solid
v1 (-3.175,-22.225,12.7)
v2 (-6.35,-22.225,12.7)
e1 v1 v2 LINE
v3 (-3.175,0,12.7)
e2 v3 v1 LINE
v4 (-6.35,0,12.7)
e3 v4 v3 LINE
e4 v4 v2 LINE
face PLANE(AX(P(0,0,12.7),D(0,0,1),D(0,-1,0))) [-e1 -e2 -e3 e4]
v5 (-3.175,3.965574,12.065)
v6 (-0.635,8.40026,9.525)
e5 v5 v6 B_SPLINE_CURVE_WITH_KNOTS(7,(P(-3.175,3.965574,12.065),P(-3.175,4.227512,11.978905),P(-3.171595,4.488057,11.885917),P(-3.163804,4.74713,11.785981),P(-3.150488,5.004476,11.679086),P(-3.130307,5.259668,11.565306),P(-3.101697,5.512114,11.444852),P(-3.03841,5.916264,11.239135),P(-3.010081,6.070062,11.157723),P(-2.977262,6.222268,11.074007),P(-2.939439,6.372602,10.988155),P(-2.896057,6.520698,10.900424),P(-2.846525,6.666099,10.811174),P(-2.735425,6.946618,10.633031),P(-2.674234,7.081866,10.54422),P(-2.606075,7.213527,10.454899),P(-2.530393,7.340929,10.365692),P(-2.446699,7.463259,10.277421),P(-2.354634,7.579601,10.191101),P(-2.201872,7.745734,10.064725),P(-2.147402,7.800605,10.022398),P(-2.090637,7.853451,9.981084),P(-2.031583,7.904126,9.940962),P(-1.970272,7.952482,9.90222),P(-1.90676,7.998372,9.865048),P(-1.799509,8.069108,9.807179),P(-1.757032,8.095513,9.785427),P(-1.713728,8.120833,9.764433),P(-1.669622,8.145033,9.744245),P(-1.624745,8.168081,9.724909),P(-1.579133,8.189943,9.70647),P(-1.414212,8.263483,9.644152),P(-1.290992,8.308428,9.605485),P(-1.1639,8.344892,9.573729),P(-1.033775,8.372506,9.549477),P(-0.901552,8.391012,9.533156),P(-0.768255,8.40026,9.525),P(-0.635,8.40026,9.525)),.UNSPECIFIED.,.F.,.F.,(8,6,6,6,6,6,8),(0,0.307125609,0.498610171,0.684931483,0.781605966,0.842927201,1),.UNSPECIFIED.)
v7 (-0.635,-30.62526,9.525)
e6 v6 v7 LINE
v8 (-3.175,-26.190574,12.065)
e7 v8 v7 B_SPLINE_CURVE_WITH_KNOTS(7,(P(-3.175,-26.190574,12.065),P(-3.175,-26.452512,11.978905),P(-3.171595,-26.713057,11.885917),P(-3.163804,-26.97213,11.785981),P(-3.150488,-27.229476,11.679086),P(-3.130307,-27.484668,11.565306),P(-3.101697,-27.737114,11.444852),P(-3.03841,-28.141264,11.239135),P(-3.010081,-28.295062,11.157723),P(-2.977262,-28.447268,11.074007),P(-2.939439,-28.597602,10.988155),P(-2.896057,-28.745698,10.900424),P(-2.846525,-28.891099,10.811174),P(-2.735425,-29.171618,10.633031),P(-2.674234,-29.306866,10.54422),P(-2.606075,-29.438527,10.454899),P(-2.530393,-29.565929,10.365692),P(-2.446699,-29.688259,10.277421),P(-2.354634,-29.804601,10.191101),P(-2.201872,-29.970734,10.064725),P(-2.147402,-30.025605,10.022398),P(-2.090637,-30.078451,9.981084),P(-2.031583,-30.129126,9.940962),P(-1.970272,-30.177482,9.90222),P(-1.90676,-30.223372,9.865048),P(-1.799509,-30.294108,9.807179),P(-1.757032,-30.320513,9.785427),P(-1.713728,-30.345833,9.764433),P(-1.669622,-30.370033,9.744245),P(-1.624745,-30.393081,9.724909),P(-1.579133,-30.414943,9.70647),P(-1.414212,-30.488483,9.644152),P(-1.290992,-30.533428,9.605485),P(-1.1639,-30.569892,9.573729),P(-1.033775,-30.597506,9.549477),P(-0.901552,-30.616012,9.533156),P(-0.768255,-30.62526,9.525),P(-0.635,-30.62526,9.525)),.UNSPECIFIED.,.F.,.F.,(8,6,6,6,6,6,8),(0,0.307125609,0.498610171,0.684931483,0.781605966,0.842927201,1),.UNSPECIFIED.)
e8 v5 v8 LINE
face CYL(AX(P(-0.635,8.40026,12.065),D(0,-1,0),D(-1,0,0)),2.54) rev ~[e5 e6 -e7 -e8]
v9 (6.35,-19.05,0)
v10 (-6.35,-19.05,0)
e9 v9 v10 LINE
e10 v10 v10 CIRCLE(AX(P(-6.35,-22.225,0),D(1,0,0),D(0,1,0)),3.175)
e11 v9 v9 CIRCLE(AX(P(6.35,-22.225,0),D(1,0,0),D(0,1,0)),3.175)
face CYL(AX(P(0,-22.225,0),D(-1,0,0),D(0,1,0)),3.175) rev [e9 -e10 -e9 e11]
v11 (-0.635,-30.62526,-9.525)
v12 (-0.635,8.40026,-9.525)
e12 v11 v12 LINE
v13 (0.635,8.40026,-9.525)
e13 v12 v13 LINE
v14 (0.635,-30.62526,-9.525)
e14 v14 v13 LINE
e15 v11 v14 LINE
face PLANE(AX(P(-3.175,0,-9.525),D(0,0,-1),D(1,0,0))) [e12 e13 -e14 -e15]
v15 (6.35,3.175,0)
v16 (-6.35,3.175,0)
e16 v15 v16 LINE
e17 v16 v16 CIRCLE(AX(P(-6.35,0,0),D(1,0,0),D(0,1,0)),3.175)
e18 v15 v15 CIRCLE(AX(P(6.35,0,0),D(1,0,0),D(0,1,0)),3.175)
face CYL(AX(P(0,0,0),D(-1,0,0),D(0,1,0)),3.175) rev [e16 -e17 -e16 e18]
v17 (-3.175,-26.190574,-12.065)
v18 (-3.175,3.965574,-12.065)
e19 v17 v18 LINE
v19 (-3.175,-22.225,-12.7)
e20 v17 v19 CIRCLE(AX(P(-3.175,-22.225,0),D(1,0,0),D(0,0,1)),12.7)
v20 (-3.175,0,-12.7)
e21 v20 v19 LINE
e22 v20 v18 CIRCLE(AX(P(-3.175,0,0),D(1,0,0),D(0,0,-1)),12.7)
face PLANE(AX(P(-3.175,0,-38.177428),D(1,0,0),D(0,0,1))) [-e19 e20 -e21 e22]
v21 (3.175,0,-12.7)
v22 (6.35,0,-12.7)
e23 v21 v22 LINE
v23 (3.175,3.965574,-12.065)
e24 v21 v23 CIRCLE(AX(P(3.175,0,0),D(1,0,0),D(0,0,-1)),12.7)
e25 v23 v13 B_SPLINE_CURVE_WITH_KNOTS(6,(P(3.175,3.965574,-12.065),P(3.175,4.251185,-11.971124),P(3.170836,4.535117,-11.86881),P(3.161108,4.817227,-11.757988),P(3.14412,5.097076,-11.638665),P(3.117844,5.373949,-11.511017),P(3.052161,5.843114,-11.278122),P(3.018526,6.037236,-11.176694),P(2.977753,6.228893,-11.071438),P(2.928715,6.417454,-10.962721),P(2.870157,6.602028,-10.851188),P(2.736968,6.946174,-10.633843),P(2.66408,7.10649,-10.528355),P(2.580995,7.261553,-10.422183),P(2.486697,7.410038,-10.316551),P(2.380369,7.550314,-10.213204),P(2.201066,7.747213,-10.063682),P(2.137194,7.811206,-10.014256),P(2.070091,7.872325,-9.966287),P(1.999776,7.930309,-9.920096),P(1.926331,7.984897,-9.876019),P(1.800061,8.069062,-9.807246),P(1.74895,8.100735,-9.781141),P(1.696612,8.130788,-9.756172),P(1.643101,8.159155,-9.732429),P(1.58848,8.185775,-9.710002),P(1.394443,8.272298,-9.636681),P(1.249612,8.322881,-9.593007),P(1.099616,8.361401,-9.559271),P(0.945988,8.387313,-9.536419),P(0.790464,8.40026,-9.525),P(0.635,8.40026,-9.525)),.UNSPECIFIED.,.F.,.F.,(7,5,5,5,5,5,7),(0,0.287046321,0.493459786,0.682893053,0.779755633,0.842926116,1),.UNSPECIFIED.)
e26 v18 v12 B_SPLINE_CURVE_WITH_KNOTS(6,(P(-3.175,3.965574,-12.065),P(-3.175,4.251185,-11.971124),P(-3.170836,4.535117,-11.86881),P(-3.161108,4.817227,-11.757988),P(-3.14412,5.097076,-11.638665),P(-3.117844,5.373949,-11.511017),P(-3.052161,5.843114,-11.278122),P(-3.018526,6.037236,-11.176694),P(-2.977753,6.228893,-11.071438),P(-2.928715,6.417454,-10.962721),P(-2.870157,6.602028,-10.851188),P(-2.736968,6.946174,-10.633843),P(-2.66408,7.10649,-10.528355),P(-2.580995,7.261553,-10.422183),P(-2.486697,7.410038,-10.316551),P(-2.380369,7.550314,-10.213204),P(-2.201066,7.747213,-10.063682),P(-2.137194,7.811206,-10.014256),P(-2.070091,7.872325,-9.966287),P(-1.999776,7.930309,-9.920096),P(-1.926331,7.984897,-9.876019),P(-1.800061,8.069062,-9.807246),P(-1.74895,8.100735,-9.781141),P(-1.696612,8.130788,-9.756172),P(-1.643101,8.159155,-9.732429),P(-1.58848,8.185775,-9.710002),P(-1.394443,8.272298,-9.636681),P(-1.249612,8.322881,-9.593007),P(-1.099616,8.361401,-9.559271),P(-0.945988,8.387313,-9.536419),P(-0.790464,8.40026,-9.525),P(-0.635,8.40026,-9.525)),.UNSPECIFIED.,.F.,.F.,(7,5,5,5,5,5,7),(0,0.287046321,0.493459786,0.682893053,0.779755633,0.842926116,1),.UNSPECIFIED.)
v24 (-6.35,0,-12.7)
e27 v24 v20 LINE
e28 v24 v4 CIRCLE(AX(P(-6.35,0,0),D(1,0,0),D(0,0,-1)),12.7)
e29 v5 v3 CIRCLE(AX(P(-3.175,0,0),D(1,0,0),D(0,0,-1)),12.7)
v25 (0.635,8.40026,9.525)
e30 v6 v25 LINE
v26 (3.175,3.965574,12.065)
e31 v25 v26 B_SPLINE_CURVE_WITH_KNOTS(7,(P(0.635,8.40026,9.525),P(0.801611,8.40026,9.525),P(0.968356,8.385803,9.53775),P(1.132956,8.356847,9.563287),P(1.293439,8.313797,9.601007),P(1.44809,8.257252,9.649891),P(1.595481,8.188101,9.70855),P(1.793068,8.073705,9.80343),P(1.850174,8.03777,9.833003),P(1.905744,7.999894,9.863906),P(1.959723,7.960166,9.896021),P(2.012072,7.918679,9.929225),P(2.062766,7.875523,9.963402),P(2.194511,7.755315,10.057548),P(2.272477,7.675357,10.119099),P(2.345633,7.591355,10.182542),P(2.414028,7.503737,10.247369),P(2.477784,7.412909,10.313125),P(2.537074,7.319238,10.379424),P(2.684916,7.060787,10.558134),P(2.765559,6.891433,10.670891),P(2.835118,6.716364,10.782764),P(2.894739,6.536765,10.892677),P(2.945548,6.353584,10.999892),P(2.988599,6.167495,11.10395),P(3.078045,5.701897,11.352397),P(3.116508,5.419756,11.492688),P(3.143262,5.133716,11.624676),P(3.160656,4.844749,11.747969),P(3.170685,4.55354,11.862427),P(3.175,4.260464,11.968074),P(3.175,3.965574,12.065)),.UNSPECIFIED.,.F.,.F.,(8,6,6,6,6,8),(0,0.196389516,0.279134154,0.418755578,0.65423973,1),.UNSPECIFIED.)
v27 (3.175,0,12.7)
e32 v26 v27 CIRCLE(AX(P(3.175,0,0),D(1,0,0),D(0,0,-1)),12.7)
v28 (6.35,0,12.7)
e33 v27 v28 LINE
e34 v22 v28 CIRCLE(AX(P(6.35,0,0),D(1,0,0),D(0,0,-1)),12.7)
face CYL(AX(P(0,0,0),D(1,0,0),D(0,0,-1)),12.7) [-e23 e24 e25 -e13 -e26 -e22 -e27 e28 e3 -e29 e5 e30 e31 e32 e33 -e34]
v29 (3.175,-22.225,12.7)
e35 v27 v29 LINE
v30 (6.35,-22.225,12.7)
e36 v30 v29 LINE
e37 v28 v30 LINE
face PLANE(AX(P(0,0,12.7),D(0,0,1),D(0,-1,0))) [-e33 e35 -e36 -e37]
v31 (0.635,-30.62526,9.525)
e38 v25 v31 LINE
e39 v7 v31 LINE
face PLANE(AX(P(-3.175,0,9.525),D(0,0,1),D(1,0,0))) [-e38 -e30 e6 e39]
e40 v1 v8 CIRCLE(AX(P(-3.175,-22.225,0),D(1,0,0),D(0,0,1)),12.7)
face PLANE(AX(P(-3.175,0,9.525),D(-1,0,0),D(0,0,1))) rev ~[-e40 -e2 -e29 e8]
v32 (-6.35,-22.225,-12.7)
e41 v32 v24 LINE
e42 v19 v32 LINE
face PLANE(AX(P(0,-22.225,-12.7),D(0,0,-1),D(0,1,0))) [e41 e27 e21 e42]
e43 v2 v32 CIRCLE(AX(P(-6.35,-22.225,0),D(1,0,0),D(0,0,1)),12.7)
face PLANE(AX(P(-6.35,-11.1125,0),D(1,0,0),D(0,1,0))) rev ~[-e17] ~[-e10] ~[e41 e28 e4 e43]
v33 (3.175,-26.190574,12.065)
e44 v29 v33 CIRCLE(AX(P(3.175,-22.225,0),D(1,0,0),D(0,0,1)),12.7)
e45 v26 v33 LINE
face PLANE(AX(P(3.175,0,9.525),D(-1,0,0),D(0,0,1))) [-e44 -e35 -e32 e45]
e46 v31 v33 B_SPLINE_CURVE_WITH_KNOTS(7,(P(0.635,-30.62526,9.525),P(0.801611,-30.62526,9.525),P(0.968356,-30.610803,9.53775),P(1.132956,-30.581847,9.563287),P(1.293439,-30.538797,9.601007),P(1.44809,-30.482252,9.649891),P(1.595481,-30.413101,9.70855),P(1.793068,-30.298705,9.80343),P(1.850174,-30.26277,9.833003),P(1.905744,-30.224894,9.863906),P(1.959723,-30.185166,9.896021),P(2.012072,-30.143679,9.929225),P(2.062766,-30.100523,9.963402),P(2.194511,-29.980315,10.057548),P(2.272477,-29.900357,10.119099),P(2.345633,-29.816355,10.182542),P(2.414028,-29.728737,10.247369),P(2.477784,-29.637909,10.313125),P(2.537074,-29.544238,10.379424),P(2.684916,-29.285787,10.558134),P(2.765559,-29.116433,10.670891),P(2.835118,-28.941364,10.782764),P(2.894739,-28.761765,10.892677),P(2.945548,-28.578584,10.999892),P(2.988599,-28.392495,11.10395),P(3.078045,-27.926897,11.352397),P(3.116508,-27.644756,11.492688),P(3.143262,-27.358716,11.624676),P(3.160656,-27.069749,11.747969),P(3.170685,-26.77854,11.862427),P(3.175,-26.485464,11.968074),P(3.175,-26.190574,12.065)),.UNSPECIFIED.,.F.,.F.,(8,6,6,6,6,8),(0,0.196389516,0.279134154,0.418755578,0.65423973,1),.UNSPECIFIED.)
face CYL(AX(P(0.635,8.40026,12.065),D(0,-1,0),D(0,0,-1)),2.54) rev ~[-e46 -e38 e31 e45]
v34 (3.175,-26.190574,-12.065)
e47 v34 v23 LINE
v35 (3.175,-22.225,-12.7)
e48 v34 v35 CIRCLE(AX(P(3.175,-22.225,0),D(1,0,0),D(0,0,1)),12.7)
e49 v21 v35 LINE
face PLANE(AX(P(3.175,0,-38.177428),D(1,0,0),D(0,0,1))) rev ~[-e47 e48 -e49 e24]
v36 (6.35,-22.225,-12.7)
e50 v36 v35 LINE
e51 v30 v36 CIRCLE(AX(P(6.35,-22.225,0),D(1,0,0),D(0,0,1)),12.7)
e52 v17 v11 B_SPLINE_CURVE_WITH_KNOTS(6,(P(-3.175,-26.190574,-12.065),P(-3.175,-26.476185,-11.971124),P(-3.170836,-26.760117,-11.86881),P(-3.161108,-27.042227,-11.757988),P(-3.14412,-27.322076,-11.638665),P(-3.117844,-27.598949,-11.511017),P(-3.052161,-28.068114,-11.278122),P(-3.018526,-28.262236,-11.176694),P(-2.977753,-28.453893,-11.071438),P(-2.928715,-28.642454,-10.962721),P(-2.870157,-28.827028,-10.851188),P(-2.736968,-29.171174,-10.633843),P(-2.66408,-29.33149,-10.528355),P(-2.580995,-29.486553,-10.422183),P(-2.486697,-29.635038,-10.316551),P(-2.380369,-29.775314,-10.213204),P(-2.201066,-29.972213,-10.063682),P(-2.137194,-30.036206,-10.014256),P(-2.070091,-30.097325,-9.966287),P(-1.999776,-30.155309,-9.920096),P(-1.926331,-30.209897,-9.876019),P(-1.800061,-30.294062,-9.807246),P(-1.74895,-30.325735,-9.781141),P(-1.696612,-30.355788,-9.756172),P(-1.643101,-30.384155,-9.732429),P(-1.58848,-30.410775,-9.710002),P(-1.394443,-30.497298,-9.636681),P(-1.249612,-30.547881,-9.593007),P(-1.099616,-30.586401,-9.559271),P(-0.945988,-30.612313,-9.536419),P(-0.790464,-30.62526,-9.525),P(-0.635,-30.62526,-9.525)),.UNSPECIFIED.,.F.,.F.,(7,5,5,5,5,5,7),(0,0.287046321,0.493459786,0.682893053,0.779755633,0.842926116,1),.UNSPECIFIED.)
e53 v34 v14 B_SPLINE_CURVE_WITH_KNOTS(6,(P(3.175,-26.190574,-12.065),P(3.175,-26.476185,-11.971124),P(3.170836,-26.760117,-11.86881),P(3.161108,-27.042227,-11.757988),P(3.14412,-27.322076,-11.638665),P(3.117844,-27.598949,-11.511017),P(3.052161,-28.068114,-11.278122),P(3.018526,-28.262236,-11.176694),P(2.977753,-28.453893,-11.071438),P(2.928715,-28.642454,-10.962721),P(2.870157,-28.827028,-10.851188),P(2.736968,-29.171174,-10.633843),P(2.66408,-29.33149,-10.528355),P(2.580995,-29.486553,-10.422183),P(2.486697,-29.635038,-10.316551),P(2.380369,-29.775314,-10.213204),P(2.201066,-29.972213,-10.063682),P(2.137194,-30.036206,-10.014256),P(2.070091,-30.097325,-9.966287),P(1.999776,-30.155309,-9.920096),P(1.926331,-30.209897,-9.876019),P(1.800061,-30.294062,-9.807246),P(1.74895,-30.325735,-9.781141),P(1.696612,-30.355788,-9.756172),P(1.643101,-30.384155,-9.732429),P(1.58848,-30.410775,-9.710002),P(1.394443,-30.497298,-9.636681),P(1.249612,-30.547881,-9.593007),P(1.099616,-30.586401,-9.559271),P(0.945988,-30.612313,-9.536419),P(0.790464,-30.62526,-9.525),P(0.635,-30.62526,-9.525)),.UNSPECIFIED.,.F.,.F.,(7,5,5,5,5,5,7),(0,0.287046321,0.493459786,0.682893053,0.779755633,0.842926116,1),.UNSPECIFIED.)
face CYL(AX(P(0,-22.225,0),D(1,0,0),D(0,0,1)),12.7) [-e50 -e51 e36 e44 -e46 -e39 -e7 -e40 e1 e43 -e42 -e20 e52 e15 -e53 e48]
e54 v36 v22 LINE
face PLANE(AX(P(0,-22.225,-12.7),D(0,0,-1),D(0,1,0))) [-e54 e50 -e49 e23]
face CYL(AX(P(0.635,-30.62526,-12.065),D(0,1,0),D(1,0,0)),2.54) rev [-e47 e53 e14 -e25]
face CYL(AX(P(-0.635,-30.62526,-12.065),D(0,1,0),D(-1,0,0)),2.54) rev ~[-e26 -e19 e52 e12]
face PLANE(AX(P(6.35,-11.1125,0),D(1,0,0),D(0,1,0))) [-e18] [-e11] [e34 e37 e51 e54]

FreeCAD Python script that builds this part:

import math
import FreeCAD as App
import Part
import Sketcher

V = App.Vector
Q = App.Units.Quantity


def edges_at(feature, points):
    """Names of the edges that pass closest to the given points."""
    edges = feature.Shape.Edges
    near = lambda p: min(range(len(edges)), key=lambda i: edges[i].distToShape(Part.Vertex(*p))[0])
    return sorted({f"Edge{near(p) + 1}" for p in points})

doc = App.newDocument("Part")
body = doc.addObject("PartDesign::Body", "Body")

# Sketch on YZ plane
sketch1 = body.newObject("Sketcher::SketchObject", "Sketch")
sketch1.AttachmentSupport = (doc.getObject("YZ_Plane"), [""])
sketch1.MapMode = "FlatFace"
sketch1.addGeometry([
    Part.LineSegment(V(-22.2, -12.7, 0), V(0, -12.7, 0)),  # 0
    Part.ArcOfCircle(Part.Circle(V(0, 0, 0), V(0, 0, 1), 12.7), math.radians(-90), math.radians(90)),  # 1
    Part.LineSegment(V(0, 12.7, 0), V(-22.2, 12.7, 0)),  # 2
    Part.ArcOfCircle(Part.Circle(V(-22.2, 0, 0), V(0, 0, 1), 12.7), math.radians(90), math.radians(270)),  # 3
    Part.Circle(V(-22.2, 0, 0), V(0, 0, 1), 3.2),  # 4
    Part.Circle(V(0, 0, 0), V(0, 0, 1), 3.2),  # 5
], False)
sketch1.addConstraint([
    Sketcher.Constraint("Tangent", 0, 2, 1, 1),
    Sketcher.Constraint("Tangent", 1, 2, 2, 1),
    Sketcher.Constraint("Tangent", 2, 2, 3, 1),
    Sketcher.Constraint("Tangent", 3, 2, 0, 1),
    Sketcher.Constraint("Horizontal", 0),
    Sketcher.Constraint("Horizontal", 2),
    Sketcher.Constraint("Coincident", 1, 3, -1, 1),
    Sketcher.Constraint("Coincident", 5, 3, -1, 1),
    Sketcher.Constraint("Coincident", 4, 3, 3, 3),
    Sketcher.Constraint("Equal", 4, 5),
    Sketcher.Constraint("Radius", 1, Q("0.5 in")),
    Sketcher.Constraint("Diameter", 4, Q("0.25 in")),
    Sketcher.Constraint("DistanceX", 0, 1, 0, 2, Q("0.875 in")),
])
pad1 = body.newObject("PartDesign::Pad", "Pad")
pad1.Profile = sketch1
pad1.Length = Q("0.5 in")
pad1.Midplane = True

# Sketch on XZ plane
sketch2 = body.newObject("Sketcher::SketchObject", "Sketch001")
sketch2.AttachmentSupport = (doc.getObject("XZ_Plane"), [""])
sketch2.MapMode = "FlatFace"
sketch2.addGeometry([
    Part.LineSegment(V(-3, 34, 0), V(-3, 10, 0)),  # 0
    Part.LineSegment(V(-3, 10, 0), V(3, 10, 0)),  # 1
    Part.LineSegment(V(3, 10, 0), V(3, 34, 0)),  # 2
    Part.LineSegment(V(3, 34, 0), V(-3, 34, 0)),  # 3
    Part.LineSegment(V(-3, -10, 0), V(-3, -38, 0)),  # 4
    Part.LineSegment(V(-3, -38, 0), V(3, -38, 0)),  # 5
    Part.LineSegment(V(3, -38, 0), V(3, -10, 0)),  # 6
    Part.LineSegment(V(3, -10, 0), V(-3, -10, 0)),  # 7
], False)
sketch2.addConstraint([
    Sketcher.Constraint("Coincident", 0, 2, 1, 1),
    Sketcher.Constraint("Coincident", 1, 2, 2, 1),
    Sketcher.Constraint("Coincident", 2, 2, 3, 1),
    Sketcher.Constraint("Coincident", 3, 2, 0, 1),
    Sketcher.Constraint("Coincident", 4, 2, 5, 1),
    Sketcher.Constraint("Coincident", 5, 2, 6, 1),
    Sketcher.Constraint("Coincident", 6, 2, 7, 1),
    Sketcher.Constraint("Coincident", 7, 2, 4, 1),
    Sketcher.Constraint("Vertical", 0),
    Sketcher.Constraint("Horizontal", 1),
    Sketcher.Constraint("Vertical", 2),
    Sketcher.Constraint("Horizontal", 3),
    Sketcher.Constraint("Vertical", 4),
    Sketcher.Constraint("Horizontal", 5),
    Sketcher.Constraint("Vertical", 6),
    Sketcher.Constraint("Horizontal", 7),
    Sketcher.Constraint("Symmetric", 0, 2, 6, 2, -1, 1),
    Sketcher.Constraint("Vertical", 3, 2, 4, 2),
    Sketcher.Constraint("Vertical", 2, 2, 5, 2),
    Sketcher.Constraint("DistanceX", 1, 1, 1, 2, Q("0.25 in")),
    Sketcher.Constraint("DistanceY", 6, 2, 1, 2, Q("0.75 in")),
    Sketcher.Constraint("DistanceY", 4, 2, 4, 1, 28.652428),
    Sketcher.Constraint("DistanceY", 0, 2, 0, 1, 24.715454),
])
pocket1 = body.newObject("PartDesign::Pocket", "Pocket")
pocket1.Profile = sketch2
pocket1.Length = Q("4 in")
pocket1.Midplane = True
doc.recompute()

fillet = body.newObject("PartDesign::Fillet", "Fillet")
fillet.Base = (pocket1, edges_at(pocket1, [
    (-3.175, -11.113, 9.525),
    (3.175, -11.113, 9.525),
    (-3.175, -11.113, -9.525),
    (3.175, -11.113, -9.525),
]))
fillet.Radius = Q("0.1 in")

doc.recompute()
